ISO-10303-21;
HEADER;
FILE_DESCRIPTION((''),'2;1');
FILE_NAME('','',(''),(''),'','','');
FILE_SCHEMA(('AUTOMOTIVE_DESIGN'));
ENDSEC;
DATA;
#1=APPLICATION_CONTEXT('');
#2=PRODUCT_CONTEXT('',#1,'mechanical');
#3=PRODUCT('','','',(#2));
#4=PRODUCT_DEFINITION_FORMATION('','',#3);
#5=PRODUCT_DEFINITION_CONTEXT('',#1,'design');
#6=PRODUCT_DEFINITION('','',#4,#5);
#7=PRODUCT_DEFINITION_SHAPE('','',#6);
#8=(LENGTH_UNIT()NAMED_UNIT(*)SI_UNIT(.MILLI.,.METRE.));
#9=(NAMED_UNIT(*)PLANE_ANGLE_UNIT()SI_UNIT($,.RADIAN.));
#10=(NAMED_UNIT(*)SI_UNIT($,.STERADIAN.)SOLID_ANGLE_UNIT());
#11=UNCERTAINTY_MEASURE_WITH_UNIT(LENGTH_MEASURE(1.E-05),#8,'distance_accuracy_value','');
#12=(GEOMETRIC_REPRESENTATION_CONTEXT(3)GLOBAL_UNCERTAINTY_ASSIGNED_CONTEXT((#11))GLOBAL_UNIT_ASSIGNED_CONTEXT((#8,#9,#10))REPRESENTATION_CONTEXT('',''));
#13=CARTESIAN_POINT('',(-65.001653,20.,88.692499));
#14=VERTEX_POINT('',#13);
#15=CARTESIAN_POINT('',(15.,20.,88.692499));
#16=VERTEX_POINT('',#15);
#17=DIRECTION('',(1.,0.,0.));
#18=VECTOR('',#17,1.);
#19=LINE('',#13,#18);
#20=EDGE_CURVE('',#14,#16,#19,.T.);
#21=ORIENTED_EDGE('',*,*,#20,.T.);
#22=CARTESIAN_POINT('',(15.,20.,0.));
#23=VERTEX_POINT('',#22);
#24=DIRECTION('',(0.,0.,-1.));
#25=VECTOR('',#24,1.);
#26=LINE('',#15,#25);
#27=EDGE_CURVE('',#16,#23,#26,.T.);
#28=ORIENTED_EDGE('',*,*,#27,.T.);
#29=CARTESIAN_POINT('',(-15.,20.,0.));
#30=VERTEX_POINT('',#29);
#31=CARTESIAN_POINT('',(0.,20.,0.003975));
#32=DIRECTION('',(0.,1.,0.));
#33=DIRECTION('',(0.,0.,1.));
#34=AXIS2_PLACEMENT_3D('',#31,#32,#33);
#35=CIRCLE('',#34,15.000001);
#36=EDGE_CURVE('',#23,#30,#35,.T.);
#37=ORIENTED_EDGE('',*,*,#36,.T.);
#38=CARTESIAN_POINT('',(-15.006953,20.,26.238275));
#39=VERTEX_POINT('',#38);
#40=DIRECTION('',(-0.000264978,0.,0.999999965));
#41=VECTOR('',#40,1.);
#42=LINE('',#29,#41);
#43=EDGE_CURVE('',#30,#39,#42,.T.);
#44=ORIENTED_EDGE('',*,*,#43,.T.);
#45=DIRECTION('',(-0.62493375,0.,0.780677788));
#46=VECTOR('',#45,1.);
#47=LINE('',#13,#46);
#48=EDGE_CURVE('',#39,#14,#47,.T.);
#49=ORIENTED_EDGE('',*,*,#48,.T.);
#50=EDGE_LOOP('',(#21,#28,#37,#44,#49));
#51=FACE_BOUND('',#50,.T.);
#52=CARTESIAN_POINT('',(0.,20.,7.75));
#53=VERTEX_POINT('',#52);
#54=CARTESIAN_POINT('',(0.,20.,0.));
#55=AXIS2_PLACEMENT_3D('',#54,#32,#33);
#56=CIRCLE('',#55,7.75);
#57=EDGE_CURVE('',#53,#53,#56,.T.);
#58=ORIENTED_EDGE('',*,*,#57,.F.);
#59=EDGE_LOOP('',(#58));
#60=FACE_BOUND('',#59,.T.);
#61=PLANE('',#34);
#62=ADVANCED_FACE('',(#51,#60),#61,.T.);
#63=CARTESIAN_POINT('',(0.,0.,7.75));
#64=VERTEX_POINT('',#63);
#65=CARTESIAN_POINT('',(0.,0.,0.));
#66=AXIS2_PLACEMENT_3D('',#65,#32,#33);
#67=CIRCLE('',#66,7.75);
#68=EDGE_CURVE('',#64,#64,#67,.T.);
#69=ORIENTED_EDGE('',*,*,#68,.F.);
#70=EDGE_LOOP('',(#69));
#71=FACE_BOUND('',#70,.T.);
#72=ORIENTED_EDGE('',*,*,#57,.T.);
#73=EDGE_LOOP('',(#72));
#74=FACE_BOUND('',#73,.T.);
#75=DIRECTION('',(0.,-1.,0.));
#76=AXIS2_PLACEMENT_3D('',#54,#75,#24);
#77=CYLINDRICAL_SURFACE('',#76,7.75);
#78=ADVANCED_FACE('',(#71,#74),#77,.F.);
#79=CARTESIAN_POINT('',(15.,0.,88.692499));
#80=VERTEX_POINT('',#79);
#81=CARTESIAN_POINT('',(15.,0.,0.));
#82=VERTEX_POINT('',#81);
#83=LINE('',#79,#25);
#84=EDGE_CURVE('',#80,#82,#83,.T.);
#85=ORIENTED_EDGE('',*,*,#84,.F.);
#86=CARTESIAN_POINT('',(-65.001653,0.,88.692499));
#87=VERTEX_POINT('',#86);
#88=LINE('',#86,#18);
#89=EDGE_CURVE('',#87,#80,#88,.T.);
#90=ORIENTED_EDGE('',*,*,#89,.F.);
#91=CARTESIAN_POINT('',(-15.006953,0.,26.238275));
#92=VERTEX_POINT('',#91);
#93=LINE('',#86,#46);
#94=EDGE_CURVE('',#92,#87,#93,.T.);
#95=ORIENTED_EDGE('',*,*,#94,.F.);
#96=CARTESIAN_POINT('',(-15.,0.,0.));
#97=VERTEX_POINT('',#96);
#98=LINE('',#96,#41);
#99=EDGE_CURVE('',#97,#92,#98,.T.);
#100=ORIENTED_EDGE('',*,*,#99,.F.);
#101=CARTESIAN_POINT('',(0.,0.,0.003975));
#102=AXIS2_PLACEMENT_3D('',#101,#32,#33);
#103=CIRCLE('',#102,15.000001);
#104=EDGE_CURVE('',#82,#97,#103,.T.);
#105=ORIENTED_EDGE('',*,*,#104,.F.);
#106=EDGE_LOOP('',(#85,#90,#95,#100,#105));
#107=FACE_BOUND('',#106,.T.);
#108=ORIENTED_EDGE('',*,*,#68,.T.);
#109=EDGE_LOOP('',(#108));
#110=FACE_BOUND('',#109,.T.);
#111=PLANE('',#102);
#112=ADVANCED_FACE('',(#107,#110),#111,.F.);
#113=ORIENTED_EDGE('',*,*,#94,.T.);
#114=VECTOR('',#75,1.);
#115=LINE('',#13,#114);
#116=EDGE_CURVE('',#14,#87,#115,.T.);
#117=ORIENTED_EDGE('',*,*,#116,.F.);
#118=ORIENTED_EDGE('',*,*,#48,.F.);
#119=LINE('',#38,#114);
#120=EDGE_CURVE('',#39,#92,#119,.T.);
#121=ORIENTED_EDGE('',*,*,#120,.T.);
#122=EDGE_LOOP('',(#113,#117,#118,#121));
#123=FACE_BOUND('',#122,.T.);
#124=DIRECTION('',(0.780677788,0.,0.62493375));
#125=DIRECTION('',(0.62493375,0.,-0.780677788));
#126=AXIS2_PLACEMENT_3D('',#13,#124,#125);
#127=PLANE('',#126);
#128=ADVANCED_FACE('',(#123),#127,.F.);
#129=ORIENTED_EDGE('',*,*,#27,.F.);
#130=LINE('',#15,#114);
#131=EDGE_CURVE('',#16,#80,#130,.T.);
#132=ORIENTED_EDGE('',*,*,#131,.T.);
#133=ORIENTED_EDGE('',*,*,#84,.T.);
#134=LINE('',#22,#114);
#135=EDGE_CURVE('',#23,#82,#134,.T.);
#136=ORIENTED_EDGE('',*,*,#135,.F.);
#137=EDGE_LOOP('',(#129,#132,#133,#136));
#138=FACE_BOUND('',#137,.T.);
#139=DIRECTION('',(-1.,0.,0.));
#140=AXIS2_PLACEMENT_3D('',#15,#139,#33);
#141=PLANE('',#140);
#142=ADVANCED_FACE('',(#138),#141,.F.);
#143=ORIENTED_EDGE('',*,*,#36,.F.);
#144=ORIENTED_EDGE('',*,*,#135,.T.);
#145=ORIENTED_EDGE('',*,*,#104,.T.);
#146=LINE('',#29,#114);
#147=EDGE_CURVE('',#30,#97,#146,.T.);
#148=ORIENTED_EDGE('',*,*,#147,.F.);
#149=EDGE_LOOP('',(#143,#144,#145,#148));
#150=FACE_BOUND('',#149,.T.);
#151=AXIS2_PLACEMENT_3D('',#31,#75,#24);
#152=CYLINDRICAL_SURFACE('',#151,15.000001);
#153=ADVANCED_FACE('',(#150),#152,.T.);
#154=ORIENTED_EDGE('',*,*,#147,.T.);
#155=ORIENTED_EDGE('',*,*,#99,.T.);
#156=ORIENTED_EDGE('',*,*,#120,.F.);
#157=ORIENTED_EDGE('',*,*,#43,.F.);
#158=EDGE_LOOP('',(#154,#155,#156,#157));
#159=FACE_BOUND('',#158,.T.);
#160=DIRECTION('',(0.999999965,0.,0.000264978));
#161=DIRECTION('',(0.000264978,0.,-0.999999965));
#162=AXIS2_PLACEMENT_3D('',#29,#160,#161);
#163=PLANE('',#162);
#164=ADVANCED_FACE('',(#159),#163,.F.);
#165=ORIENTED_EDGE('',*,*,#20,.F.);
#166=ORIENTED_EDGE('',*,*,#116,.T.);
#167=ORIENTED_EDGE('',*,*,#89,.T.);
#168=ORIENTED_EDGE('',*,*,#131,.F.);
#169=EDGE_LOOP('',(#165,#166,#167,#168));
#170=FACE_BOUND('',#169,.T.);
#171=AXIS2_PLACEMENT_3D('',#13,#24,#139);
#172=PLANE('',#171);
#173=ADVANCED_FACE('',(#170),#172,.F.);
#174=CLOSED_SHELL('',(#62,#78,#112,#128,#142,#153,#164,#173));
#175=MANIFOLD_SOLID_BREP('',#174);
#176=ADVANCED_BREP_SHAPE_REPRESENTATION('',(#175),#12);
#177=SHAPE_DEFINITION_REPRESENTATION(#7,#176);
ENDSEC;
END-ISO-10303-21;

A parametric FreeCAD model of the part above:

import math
import FreeCAD as App
import Part
import Sketcher
from FreeCAD import Vector
Q = App.Units.Quantity

doc = App.newDocument("Part")
body = doc.addObject("PartDesign::Body", "Body")

sketch1 = body.newObject("Sketcher::SketchObject", "Sketch")
sketch1.AttachmentSupport = (doc.getObject("XZ_Plane"), [""])
sketch1.MapMode = "FlatFace"
sketch1.addGeometry([
    Part.LineSegment(Vector(-15, 0, 0), Vector(-15.006953, 26.238275, 0)),
    Part.LineSegment(Vector(-15.006953, 26.238275, 0), Vector(-65.001653, 88.692499, 0)),
    Part.LineSegment(Vector(-65.001653, 88.692499, 0), Vector(15, 88.692499, 0)),
    Part.LineSegment(Vector(15, 88.692499, 0), Vector(15, 0, 0)),
    Part.ArcOfCircle(Part.Circle(Vector(0, 0.003975, 0), Vector(0, 0, 1), 15.000001), math.radians(-179.984818), math.radians(-0.015182)),
    Part.Circle(Vector(0, 0, 0), Vector(0, 0, 1), 7.75),
], False)
sketch1.addConstraint([
    Sketcher.Constraint("Coincident", 0, 2, 1, 1),
    Sketcher.Constraint("Coincident", 1, 2, 2, 1),
    Sketcher.Constraint("Coincident", 2, 2, 3, 1),
    Sketcher.Constraint("Coincident", 3, 2, 4, 2),
    Sketcher.Constraint("Tangent", 4, 1, 0, 1),
    Sketcher.Constraint("Horizontal", 2),
    Sketcher.Constraint("Vertical", 3),
    Sketcher.Constraint("Coincident", 5, 3, -1, 1),
    Sketcher.Constraint("Symmetric", 3, 2, 4, 1, -1, 1),
    Sketcher.Constraint("PointOnObject", 3, 2, -1),
    Sketcher.Constraint("Radius", 4, Q("15.000001 mm")),
    Sketcher.Constraint("Diameter", 5, Q("15.5 mm")),
    Sketcher.Constraint("Distance", 1, Q("80 mm")),
    Sketcher.Constraint("DistanceY", 3, 2, 3, 1, Q("88.692499 mm")),
    Sketcher.Constraint("DistanceY", 4, 3, 0, 2, Q("26.234301 mm")),
    Sketcher.Constraint("DistanceX", 1, 2, 0, 2, Q("49.9947 mm")),
])
pad1 = body.newObject("PartDesign::Pad", "Pad")
pad1.Profile = sketch1
pad1.Length = 20
pad1.Reversed = True

doc.recompute()
